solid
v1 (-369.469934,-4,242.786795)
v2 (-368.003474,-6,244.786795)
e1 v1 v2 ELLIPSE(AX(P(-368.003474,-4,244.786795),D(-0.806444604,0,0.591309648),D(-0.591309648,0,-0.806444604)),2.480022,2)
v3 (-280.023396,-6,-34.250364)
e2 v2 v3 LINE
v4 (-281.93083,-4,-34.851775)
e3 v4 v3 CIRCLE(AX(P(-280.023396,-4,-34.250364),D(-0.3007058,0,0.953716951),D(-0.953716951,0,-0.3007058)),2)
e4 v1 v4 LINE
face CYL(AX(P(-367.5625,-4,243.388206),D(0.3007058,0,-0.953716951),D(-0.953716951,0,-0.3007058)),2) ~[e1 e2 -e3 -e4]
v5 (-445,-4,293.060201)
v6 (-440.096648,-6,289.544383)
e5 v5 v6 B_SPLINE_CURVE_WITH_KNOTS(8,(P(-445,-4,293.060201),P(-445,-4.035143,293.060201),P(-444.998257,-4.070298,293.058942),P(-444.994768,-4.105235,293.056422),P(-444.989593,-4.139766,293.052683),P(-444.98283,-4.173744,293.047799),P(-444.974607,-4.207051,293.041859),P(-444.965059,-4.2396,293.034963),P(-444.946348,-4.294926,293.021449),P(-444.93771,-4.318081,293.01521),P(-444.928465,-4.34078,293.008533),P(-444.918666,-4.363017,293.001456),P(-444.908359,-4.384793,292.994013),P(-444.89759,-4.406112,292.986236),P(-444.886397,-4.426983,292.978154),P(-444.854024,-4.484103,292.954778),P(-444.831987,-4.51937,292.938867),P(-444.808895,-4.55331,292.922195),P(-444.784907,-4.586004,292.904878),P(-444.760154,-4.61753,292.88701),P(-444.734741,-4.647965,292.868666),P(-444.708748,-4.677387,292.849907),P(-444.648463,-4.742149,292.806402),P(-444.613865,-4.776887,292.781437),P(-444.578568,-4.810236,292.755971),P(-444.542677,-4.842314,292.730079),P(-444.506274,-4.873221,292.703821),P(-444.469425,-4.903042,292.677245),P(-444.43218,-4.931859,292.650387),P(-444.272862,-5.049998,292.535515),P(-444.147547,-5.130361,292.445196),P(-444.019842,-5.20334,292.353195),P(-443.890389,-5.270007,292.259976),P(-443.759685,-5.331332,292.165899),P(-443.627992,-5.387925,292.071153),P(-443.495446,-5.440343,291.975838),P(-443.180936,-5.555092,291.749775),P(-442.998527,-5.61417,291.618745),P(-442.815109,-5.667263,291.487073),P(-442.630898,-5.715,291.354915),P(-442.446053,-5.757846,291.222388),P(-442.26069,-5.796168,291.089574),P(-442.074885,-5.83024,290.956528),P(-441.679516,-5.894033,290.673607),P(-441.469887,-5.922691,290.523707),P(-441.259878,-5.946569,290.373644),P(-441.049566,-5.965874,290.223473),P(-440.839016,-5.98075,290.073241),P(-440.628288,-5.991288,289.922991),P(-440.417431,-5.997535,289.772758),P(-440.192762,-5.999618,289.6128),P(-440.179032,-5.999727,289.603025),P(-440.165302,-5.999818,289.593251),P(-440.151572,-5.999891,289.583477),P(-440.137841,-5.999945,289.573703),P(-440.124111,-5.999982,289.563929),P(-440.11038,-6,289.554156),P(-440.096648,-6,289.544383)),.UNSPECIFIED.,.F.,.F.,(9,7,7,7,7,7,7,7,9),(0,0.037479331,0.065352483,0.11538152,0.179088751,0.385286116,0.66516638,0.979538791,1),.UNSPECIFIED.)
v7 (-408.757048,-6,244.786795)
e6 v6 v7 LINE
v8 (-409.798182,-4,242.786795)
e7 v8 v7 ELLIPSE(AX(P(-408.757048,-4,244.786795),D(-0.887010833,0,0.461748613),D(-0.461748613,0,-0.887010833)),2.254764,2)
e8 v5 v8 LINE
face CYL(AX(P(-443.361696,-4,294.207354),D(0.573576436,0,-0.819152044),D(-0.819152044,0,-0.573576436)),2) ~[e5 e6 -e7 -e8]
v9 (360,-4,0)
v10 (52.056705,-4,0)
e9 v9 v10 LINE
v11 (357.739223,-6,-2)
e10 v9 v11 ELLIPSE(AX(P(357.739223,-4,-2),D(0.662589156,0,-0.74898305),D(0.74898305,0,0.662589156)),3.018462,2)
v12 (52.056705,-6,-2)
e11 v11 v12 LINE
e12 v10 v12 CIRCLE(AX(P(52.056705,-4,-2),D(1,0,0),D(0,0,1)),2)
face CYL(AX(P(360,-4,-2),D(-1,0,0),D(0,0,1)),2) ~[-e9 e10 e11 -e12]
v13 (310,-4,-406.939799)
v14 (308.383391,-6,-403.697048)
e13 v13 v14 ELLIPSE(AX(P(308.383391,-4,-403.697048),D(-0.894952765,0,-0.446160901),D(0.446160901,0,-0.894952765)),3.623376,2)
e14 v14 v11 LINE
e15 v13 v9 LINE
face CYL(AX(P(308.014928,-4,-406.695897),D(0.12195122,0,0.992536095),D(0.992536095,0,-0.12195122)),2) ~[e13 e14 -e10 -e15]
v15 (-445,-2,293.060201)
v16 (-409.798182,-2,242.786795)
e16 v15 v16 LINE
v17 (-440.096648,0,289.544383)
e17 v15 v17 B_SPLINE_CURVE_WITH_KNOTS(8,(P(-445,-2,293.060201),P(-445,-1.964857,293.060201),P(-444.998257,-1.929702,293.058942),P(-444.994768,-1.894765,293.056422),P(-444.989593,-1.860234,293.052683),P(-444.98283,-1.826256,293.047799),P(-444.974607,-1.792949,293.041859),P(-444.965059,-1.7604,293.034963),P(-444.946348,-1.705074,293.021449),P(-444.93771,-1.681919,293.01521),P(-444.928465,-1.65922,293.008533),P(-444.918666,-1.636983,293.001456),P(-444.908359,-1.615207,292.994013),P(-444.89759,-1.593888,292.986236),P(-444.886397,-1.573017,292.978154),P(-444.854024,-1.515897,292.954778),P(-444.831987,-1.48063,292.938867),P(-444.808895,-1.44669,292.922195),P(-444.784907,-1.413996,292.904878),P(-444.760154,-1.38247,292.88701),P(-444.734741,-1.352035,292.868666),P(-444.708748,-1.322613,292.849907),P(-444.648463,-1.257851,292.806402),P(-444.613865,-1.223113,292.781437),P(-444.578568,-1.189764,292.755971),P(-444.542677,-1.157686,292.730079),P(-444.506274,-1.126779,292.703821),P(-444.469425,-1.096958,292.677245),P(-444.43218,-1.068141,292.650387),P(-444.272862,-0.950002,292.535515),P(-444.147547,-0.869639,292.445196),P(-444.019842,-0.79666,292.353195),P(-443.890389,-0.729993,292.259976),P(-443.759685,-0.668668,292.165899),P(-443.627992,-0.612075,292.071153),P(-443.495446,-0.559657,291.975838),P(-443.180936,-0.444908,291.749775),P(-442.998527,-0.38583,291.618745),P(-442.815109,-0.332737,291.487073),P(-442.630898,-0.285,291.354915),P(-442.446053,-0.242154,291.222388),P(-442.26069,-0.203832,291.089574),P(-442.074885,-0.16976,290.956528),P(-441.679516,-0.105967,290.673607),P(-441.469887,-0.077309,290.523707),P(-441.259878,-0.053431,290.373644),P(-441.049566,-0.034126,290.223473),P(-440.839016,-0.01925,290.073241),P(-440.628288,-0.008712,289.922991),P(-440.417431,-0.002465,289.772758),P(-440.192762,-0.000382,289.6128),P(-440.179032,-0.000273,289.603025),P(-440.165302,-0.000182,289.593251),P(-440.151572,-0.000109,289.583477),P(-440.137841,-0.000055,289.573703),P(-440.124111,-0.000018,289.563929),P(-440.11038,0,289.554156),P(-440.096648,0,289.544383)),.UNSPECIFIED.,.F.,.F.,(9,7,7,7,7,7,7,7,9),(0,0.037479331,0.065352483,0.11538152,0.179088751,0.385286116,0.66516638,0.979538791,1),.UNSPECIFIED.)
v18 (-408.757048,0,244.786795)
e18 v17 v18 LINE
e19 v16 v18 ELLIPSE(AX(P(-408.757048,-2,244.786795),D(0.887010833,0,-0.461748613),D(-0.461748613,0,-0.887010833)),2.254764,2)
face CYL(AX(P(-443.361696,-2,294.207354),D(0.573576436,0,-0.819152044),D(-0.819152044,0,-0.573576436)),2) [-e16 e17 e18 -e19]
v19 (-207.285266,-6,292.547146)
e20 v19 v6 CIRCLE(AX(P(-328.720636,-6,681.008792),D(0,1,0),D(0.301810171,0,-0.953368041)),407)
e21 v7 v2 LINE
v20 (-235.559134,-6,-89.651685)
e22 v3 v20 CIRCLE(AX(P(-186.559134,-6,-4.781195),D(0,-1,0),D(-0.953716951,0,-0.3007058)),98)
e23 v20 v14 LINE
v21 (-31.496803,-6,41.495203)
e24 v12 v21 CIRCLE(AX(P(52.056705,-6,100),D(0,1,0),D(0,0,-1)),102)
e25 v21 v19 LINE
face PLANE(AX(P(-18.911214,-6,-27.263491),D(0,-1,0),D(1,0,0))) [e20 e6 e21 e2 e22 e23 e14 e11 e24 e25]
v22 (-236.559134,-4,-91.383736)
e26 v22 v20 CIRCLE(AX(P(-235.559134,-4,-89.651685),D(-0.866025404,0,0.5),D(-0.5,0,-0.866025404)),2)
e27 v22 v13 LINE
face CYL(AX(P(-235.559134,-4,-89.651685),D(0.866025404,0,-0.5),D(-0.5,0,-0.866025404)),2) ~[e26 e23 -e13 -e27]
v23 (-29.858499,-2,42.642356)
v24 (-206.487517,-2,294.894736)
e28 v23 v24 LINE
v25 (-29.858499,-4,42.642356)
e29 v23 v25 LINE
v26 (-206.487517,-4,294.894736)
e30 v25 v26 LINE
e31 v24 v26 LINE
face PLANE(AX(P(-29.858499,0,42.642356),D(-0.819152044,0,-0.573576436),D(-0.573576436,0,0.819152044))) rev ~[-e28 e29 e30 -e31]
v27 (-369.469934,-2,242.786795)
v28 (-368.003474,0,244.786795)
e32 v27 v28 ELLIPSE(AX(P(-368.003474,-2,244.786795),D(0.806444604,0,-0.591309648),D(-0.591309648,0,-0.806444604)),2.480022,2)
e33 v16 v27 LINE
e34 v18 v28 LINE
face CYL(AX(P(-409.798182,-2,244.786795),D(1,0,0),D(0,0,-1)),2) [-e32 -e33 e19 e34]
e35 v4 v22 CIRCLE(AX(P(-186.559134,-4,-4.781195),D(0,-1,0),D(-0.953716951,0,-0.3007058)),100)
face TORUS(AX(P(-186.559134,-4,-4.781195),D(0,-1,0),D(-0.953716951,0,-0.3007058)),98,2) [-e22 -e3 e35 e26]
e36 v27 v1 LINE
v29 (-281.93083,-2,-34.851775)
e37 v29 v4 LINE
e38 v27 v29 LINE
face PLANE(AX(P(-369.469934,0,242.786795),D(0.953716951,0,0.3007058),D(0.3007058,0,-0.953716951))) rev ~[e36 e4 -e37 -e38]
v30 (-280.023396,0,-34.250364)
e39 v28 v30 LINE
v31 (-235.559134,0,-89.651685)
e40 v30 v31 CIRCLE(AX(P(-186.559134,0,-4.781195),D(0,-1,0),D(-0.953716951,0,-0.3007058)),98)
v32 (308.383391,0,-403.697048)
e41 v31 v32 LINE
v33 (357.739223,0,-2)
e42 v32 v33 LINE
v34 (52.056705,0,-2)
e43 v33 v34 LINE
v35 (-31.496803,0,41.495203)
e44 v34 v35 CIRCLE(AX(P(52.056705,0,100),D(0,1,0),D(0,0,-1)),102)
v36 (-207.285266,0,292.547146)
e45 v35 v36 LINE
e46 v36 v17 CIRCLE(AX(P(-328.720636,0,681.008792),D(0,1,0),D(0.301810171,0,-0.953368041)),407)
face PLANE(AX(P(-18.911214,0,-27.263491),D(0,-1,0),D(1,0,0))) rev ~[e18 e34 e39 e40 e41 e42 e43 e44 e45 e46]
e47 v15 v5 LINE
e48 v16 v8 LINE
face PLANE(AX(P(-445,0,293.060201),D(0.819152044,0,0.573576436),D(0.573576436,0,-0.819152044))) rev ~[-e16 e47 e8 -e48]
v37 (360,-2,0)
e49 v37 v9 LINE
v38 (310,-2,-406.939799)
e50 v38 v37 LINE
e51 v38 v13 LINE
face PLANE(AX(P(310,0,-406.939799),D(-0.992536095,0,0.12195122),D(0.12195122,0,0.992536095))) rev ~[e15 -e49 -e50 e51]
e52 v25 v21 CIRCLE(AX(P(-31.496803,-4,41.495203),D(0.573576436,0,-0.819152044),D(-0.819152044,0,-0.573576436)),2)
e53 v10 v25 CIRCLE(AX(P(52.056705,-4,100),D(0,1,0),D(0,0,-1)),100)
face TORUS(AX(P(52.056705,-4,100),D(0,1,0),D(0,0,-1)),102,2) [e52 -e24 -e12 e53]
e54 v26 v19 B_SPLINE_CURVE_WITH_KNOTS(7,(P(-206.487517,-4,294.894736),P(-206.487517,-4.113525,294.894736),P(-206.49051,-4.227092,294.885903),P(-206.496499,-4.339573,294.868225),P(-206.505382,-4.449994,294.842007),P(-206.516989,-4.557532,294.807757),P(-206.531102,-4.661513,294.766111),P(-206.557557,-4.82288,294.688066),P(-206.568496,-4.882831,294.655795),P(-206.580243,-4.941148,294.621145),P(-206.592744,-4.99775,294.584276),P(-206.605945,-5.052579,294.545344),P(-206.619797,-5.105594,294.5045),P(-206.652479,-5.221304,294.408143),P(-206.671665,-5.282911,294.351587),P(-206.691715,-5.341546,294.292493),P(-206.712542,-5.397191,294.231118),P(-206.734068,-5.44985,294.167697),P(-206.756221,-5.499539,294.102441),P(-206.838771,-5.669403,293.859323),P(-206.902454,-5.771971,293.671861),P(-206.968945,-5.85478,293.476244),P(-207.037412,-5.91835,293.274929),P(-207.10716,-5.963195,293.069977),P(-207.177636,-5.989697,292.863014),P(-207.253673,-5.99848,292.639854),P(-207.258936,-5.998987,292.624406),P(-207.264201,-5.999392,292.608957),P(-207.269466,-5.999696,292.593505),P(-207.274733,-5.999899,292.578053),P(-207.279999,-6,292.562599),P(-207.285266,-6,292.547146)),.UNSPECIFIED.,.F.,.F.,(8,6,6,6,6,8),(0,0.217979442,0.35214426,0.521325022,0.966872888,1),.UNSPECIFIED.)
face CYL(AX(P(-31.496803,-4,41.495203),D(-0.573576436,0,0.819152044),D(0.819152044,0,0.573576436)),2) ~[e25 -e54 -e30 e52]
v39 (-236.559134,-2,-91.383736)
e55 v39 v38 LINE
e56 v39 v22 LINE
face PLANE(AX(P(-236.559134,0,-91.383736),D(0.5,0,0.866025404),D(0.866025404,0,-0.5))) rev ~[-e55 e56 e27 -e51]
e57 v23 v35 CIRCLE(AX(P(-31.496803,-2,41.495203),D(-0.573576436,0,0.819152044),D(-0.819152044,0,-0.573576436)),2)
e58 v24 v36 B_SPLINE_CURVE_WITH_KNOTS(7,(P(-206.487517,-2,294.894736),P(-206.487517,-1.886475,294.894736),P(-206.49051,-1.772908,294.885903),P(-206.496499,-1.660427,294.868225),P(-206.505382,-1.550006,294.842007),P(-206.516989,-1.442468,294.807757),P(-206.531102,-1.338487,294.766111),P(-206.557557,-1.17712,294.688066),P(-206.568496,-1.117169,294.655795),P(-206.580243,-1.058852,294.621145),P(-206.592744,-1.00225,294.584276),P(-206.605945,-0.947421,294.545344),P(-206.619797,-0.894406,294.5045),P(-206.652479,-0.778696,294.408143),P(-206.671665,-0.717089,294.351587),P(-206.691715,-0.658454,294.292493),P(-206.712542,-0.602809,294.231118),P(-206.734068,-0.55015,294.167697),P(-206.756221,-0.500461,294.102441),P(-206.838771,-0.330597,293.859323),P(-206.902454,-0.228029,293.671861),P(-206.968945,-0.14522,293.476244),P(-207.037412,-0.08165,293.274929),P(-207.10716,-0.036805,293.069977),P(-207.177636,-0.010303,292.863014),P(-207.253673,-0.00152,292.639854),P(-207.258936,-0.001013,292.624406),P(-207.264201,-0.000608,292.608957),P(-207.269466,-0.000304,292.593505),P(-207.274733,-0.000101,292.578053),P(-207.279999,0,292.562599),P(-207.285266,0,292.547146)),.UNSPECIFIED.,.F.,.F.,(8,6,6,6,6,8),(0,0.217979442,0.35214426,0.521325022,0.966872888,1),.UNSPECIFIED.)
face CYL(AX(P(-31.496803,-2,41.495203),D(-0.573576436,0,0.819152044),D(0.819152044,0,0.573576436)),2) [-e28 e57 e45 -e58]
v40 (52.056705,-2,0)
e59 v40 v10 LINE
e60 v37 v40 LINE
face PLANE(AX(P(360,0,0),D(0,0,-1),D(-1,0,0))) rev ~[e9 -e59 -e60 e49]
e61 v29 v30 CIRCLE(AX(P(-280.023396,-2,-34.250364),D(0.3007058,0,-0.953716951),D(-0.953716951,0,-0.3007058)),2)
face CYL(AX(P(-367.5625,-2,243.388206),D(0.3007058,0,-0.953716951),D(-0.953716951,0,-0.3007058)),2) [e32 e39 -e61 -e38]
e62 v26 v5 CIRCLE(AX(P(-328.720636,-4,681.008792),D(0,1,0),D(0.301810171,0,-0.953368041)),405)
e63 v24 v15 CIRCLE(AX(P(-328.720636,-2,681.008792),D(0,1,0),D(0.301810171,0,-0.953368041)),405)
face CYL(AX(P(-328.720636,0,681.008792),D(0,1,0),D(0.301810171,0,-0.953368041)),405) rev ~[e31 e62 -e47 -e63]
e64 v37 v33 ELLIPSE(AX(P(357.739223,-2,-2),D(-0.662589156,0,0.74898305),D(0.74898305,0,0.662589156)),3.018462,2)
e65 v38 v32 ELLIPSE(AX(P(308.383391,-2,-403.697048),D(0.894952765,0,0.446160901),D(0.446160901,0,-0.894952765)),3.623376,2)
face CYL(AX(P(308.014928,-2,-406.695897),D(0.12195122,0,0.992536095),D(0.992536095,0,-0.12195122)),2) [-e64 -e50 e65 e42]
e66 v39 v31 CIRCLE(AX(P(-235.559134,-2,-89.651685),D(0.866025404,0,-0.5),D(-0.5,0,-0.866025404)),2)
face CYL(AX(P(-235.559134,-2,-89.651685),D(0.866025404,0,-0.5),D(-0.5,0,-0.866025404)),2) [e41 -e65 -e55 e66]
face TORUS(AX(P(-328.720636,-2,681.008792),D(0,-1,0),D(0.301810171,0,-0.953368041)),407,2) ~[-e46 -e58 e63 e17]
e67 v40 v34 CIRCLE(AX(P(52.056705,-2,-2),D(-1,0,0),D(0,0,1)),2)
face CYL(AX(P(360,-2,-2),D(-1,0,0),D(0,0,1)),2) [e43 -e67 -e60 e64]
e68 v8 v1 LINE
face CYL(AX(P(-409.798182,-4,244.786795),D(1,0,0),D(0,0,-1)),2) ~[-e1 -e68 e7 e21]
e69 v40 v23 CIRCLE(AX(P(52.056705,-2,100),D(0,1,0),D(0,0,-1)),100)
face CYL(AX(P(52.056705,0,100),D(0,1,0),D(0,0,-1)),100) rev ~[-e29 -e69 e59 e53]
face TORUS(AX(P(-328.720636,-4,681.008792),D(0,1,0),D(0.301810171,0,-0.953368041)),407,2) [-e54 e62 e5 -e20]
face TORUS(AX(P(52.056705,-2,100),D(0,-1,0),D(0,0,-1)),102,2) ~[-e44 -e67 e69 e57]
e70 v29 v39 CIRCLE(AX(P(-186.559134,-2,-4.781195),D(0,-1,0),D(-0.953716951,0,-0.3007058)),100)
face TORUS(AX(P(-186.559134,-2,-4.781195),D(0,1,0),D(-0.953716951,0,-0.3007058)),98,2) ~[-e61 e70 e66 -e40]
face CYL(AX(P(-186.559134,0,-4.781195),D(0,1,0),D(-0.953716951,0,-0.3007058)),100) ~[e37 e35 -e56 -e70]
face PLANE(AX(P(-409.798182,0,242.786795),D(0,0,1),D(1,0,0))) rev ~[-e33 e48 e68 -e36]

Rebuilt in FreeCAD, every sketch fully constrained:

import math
import FreeCAD as App
import Part
import Sketcher

V = App.Vector
Q = App.Units.Quantity


def edges_at(feature, points):
    """Names of the edges that pass closest to the given points."""
    edges = feature.Shape.Edges
    near = lambda p: min(range(len(edges)), key=lambda i: edges[i].distToShape(Part.Vertex(*p))[0])
    return sorted({f"Edge{near(p) + 1}" for p in points})

doc = App.newDocument("Part")
body = doc.addObject("PartDesign::Body", "Body")

sketch1 = body.newObject("Sketcher::SketchObject", "Sketch")
sketch1.AttachmentSupport = (doc.getObject("XZ_Plane"), [""])
sketch1.MapMode = "FlatFace"
sketch1.addGeometry(Part.LineSegment(V(360, 0, 0), V(52, 0, 0)), False)
sketch1.addGeometry(Part.ArcOfCircle(Part.Circle(V(52, 100, 0), V(0, 0, 1), 100), math.radians(-145), math.radians(-90)), False)
sketch1.addGeometry(Part.LineSegment(V(-30, 43, 0), V(-206, 295, 0)), False)
sketch1.addGeometry(Part.ArcOfCircle(Part.Circle(V(-329, 681, 0), V(0, 0, 1), 405), math.radians(-107), math.radians(-72)), False)
sketch1.addGeometry(Part.LineSegment(V(-445, 293, 0), V(-410, 243, 0)), False)
sketch1.addGeometry(Part.LineSegment(V(-410, 243, 0), V(-369, 243, 0)), False)
sketch1.addGeometry(Part.LineSegment(V(-369, 243, 0), V(-282, -35, 0)), False)
sketch1.addGeometry(Part.ArcOfCircle(Part.Circle(V(-187, -5, 0), V(0, 0, 1), 100), math.radians(-162), math.radians(-120)), False)
sketch1.addGeometry(Part.LineSegment(V(-237, -91, 0), V(310, -407, 0)), False)
sketch1.addGeometry(Part.LineSegment(V(310, -407, 0), V(360, 0, 0)), False)
sketch1.addConstraint(Sketcher.Constraint("Tangent", 0, 2, 1, 2))
sketch1.addConstraint(Sketcher.Constraint("Tangent", 1, 1, 2, 1))
sketch1.addConstraint(Sketcher.Constraint("Coincident", 2, 2, 3, 2))
sketch1.addConstraint(Sketcher.Constraint("Coincident", 3, 1, 4, 1))
sketch1.addConstraint(Sketcher.Constraint("Coincident", 4, 2, 5, 1))
sketch1.addConstraint(Sketcher.Constraint("Coincident", 5, 2, 6, 1))
sketch1.addConstraint(Sketcher.Constraint("Tangent", 6, 2, 7, 1))
sketch1.addConstraint(Sketcher.Constraint("Tangent", 7, 2, 8, 1))
sketch1.addConstraint(Sketcher.Constraint("Coincident", 8, 2, 9, 1))
sketch1.addConstraint(Sketcher.Constraint("Coincident", 9, 2, 0, 1))
sketch1.addConstraint(Sketcher.Constraint("Horizontal", 0))
sketch1.addConstraint(Sketcher.Constraint("Horizontal", 5))
sketch1.addConstraint(Sketcher.Constraint("Equal", 1, 7))
sketch1.addConstraint(Sketcher.Constraint("PointOnObject", 0, 2, -1))
sketch1.addConstraint(Sketcher.Constraint("Parallel", 2, 4))
sketch1.addConstraint(Sketcher.Constraint("Radius", 1, 100.0))
sketch1.addConstraint(Sketcher.Constraint("Radius", 3, 405.0))
sketch1.addConstraint(Sketcher.Constraint("Angle", 2, Q("125 deg")))
sketch1.addConstraint(Sketcher.Constraint("Angle", 8, Q("-30 deg")))
sketch1.addConstraint(Sketcher.Constraint("Distance", 9, 410.0))
sketch1.addConstraint(Sketcher.Constraint("DistanceX", -1, 1, 8, 2, 310.0))
sketch1.addConstraint(Sketcher.Constraint("DistanceX", -1, 1, 9, 2, 360.0))
sketch1.addConstraint(Sketcher.Constraint("Angle", 6, Q("-72.5 deg")))
sketch1.addConstraint(Sketcher.Constraint("DistanceX", 1, 1, -1, 1, 29.858499))
sketch1.addConstraint(Sketcher.Constraint("DistanceY", -1, 1, 3, 1, 293.060201))
sketch1.addConstraint(Sketcher.Constraint("DistanceX", 3, 3, 7, 3, 142.161502))
sketch1.addConstraint(Sketcher.Constraint("DistanceX", 5, 2, 7, 3, 182.9108))
sketch1.addConstraint(Sketcher.Constraint("DistanceX", 5, 1, 5, 2, 40.328248))
sketch1.addConstraint(Sketcher.Constraint("DistanceX", 4, 2, -1, 1, 409.798182))
pad1 = body.newObject("PartDesign::Pad", "Pad")
pad1.Profile = sketch1
pad1.Length = 6
doc.recompute()

fillet = body.newObject("PartDesign::Fillet", "Fillet")
fillet.Base = (pad1, edges_at(pad1, [
    (36.72, -6, -249.162),
    (335, -6, -203.47),
    (206.028, -6, 0),
    (5.882, -6, 11.299),
    (-118.173, -6, 168.769),
    (-325.606, -6, 276.021),
    (-427.399, -6, 267.923),
    (-389.634, -6, 242.787),
    (-325.7, -6, 103.968),
    (-264.548, -6, -67.374),
    (36.72, 0, -249.162),
    (335, 0, -203.47),
    (206.028, 0, 0),
    (5.882, 0, 11.299),
    (-118.173, 0, 168.769),
    (-325.606, 0, 276.021),
    (-427.399, 0, 267.923),
    (-389.634, 0, 242.787),
    (-325.7, 0, 103.968),
    (-264.548, 0, -67.374),
]))
fillet.Radius = 2

doc.recompute()
